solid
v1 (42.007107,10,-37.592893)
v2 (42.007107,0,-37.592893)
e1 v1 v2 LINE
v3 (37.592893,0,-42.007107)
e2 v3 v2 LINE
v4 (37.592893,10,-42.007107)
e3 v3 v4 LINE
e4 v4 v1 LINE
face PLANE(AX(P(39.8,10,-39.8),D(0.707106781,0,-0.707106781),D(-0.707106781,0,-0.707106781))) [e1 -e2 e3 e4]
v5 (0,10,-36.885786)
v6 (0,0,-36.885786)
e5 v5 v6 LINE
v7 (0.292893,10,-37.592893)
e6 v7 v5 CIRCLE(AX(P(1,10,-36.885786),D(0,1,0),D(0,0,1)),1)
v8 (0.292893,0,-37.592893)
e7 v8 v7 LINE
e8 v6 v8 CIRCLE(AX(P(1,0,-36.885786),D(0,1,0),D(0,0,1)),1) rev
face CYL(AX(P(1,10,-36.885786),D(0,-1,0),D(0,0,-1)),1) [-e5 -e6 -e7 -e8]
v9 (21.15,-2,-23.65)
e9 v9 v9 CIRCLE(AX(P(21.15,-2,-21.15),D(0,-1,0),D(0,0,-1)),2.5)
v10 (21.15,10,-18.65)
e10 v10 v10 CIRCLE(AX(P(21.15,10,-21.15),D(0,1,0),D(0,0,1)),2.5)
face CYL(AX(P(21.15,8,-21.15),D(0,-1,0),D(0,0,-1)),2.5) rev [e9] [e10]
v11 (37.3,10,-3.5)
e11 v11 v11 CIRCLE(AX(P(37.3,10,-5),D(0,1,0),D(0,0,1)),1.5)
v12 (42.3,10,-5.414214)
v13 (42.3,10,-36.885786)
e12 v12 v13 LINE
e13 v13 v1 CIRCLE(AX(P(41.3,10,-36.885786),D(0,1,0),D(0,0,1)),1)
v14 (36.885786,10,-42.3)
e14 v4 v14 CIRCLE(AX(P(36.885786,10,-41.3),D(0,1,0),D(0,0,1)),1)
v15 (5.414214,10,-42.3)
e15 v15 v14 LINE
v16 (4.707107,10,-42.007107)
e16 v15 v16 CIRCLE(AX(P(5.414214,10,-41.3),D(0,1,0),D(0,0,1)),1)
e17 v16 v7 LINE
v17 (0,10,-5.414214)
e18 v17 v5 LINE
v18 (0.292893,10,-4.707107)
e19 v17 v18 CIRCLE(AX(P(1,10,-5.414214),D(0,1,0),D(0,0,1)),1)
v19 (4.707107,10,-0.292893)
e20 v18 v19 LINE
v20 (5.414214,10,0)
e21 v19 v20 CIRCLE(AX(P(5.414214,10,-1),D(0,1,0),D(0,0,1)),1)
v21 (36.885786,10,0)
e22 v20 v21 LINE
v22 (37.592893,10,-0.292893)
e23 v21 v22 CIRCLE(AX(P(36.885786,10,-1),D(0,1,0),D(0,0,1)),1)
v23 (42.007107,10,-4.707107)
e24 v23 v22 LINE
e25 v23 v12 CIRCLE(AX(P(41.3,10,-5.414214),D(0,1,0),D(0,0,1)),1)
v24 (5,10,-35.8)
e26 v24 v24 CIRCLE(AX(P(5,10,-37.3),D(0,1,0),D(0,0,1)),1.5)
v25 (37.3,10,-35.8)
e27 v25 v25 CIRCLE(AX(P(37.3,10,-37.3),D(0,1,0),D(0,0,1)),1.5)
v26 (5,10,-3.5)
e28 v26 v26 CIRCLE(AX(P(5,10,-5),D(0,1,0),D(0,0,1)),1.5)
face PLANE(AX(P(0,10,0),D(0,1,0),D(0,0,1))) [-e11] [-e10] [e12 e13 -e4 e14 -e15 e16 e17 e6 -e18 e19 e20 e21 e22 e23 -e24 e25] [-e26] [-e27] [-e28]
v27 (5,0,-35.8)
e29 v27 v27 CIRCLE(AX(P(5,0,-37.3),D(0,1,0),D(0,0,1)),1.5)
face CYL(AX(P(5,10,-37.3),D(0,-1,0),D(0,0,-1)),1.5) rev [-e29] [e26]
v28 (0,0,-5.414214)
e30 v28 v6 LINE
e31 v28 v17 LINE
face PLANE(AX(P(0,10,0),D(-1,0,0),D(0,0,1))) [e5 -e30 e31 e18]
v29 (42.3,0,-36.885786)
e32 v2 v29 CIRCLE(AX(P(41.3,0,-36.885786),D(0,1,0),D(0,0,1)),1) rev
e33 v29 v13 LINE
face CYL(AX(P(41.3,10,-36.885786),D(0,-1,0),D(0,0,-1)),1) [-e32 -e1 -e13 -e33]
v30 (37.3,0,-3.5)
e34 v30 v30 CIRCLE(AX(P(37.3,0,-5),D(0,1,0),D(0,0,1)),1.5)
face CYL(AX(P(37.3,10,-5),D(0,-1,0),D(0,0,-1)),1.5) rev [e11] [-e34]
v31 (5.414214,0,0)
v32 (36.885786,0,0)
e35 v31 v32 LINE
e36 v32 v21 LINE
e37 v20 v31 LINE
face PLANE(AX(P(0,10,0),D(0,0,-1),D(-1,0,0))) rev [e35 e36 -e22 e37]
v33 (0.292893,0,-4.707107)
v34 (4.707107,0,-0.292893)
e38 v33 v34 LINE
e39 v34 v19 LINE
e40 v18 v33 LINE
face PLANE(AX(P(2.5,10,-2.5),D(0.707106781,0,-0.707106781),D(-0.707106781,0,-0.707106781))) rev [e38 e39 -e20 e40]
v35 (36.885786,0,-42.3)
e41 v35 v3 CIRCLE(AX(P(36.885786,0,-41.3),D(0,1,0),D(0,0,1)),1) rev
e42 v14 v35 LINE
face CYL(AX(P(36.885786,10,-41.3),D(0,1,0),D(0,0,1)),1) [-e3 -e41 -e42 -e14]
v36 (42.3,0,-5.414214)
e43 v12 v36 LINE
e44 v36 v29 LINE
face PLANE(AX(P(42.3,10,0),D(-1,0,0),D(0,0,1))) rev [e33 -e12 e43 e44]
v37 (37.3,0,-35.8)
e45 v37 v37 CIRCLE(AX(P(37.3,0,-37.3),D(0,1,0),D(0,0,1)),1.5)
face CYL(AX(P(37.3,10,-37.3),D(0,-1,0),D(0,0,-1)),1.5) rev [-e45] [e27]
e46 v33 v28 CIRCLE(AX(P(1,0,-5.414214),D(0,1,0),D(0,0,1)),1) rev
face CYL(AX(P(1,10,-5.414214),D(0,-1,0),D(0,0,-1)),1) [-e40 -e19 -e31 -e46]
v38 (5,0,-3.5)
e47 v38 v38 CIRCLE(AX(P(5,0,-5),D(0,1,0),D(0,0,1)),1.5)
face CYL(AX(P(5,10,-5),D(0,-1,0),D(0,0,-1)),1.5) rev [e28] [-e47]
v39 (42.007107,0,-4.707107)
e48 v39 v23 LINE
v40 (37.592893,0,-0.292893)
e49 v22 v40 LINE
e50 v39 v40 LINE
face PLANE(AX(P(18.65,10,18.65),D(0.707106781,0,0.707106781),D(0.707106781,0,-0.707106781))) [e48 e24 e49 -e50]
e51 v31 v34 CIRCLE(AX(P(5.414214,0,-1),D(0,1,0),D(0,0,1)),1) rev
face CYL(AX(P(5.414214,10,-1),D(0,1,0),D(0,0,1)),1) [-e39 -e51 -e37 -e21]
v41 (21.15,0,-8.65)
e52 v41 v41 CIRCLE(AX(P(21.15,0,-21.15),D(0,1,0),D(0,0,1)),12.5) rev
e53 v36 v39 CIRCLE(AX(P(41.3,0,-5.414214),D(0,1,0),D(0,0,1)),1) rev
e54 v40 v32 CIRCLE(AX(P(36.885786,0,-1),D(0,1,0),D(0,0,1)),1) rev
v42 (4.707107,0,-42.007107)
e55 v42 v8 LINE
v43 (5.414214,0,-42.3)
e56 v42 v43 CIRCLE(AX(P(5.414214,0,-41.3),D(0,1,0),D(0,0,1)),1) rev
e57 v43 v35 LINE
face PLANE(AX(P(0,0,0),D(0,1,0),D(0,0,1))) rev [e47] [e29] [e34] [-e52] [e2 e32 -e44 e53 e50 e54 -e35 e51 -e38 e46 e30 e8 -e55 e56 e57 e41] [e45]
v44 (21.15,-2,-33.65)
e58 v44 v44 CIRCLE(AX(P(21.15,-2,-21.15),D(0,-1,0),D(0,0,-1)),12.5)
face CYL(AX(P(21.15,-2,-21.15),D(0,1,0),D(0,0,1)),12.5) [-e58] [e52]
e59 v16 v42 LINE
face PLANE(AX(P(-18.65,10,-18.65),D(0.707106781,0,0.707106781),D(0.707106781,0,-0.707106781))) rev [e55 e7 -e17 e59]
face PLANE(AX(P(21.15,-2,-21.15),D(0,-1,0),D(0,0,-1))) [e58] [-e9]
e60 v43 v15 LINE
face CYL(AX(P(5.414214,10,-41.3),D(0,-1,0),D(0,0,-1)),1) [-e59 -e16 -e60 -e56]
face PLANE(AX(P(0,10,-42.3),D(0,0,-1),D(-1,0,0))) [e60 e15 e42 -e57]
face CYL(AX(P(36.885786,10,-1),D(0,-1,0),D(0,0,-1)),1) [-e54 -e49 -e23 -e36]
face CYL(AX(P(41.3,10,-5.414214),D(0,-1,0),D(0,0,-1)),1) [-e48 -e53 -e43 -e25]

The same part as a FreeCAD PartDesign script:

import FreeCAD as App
import Part
import Sketcher

V = App.Vector
Q = App.Units.Quantity


def edges_at(feature, points):
    """Names of the edges that pass closest to the given points."""
    edges = feature.Shape.Edges
    near = lambda p: min(range(len(edges)), key=lambda i: edges[i].distToShape(Part.Vertex(*p))[0])
    return sorted({f"Edge{near(p) + 1}" for p in points})

doc = App.newDocument("Part")
body = doc.addObject("PartDesign::Body", "Body")

sketch1 = body.newObject("Sketcher::SketchObject", "Sketch")
sketch1.AttachmentSupport = (doc.getObject("XZ_Plane"), [""])
sketch1.MapMode = "FlatFace"
sketch1.addGeometry([
    Part.LineSegment(V(37.3, -42.3, 0), V(5, -42.3, 0)),
    Part.LineSegment(V(5, -42.3, 0), V(0, -37.3, 0)),
    Part.LineSegment(V(0, -37.3, 0), V(0, -5, 0)),
    Part.LineSegment(V(0, -5, 0), V(5, 0, 0)),
    Part.LineSegment(V(5, 0, 0), V(37.3, 0, 0)),
    Part.LineSegment(V(37.3, 0, 0), V(42.3, -5, 0)),
    Part.LineSegment(V(42.3, -5, 0), V(42.3, -37.3, 0)),
    Part.LineSegment(V(42.3, -37.3, 0), V(37.3, -42.3, 0)),
    Part.Circle(V(5, -5, 0), V(0, 0, 1), 1.5),
    Part.Circle(V(37.3, -5, 0), V(0, 0, 1), 1.5),
    Part.Circle(V(5, -37.3, 0), V(0, 0, 1), 1.5),
    Part.Circle(V(37.3, -37.3, 0), V(0, 0, 1), 1.5),
], False)
sketch1.addConstraint([
    Sketcher.Constraint("Coincident", 0, 2, 1, 1),
    Sketcher.Constraint("Coincident", 1, 2, 2, 1),
    Sketcher.Constraint("Coincident", 2, 2, 3, 1),
    Sketcher.Constraint("Coincident", 3, 2, 4, 1),
    Sketcher.Constraint("Coincident", 4, 2, 5, 1),
    Sketcher.Constraint("Coincident", 5, 2, 6, 1),
    Sketcher.Constraint("Coincident", 6, 2, 7, 1),
    Sketcher.Constraint("Coincident", 7, 2, 0, 1),
    Sketcher.Constraint("Horizontal", 0),
    Sketcher.Constraint("Vertical", 2),
    Sketcher.Constraint("Horizontal", 4),
    Sketcher.Constraint("Vertical", 6),
    Sketcher.Constraint("Equal", 8, 9),
    Sketcher.Constraint("Equal", 9, 10),
    Sketcher.Constraint("Equal", 10, 11),
    Sketcher.Constraint("PointOnObject", 1, 2, -2),
    Sketcher.Constraint("PointOnObject", 3, 2, -1),
    Sketcher.Constraint("Perpendicular", 1, 3),
    Sketcher.Constraint("Perpendicular", 3, 5),
    Sketcher.Constraint("Perpendicular", 5, 7),
    Sketcher.Constraint("Horizontal", 8, 3, 9, 3),
    Sketcher.Constraint("Horizontal", 10, 3, 11, 3),
    Sketcher.Constraint("Horizontal", 11, 3, 1, 2),
    Sketcher.Constraint("Horizontal", 9, 3, 2, 2),
    Sketcher.Constraint("Horizontal", 2, 2, 5, 2),
    Sketcher.Constraint("Horizontal", 1, 2, 6, 2),
    Sketcher.Constraint("Vertical", 8, 3, 10, 3),
    Sketcher.Constraint("Vertical", 9, 3, 11, 3),
    Sketcher.Constraint("Vertical", 10, 3, 0, 2),
    Sketcher.Constraint("Vertical", 0, 2, 3, 2),
    Sketcher.Constraint("Vertical", 11, 3, 4, 2),
    Sketcher.Constraint("Vertical", 4, 2, 7, 2),
    Sketcher.Constraint("Equal", 4, 2),
    Sketcher.Constraint("Diameter", 8, Q("3 mm")),
    Sketcher.Constraint("DistanceX", 0, 2, 0, 1, Q("32.3 mm")),
    Sketcher.Constraint("DistanceX", -1, 1, 8, 3, Q("5 mm")),
])
pad1 = body.newObject("PartDesign::Pad", "Pad")
pad1.Profile = sketch1
pad1.Length = 10
pad1.Reversed = True
doc.recompute()

fillet = body.newObject("PartDesign::Fillet", "Fillet")
fillet.Base = (pad1, edges_at(pad1, [(0, 5, -5)]))
fillet.Radius = 1
doc.recompute()

fillet2 = body.newObject("PartDesign::Fillet", "Fillet001")
fillet2.Base = (fillet, edges_at(fillet, [(5, 5, 0)]))
fillet2.Radius = 1
doc.recompute()

fillet3 = body.newObject("PartDesign::Fillet", "Fillet002")
fillet3.Base = (fillet2, edges_at(fillet2, [(37.3, 5, 0)]))
fillet3.Radius = 1
doc.recompute()

fillet4 = body.newObject("PartDesign::Fillet", "Fillet003")
fillet4.Base = (fillet3, edges_at(fillet3, [(42.3, 5, -5)]))
fillet4.Radius = 1
doc.recompute()

fillet5 = body.newObject("PartDesign::Fillet", "Fillet004")
fillet5.Base = (fillet4, edges_at(fillet4, [(42.3, 5, -37.3)]))
fillet5.Radius = 1
doc.recompute()

fillet6 = body.newObject("PartDesign::Fillet", "Fillet005")
fillet6.Base = (fillet5, edges_at(fillet5, [(37.3, 5, -42.3)]))
fillet6.Radius = 1
doc.recompute()

fillet7 = body.newObject("PartDesign::Fillet", "Fillet006")
fillet7.Base = (fillet6, edges_at(fillet6, [(5, 5, -42.3)]))
fillet7.Radius = 1
doc.recompute()

fillet8 = body.newObject("PartDesign::Fillet", "Fillet007")
fillet8.Base = (fillet7, edges_at(fillet7, [(0, 5, -37.3)]))
fillet8.Radius = 1

sketch2 = body.newObject("Sketcher::SketchObject", "Sketch001")
sketch2.AttachmentSupport = (doc.getObject("XZ_Plane"), [""])
sketch2.MapMode = "FlatFace"
sketch2.addGeometry(Part.Circle(V(21.15, -21.15, 0), V(0, 0, 1), 12.5), False)
sketch2.addConstraint([
    Sketcher.Constraint("Diameter", 0, Q("25 mm")),
    Sketcher.Constraint("DistanceX", -1, 1, 0, 3, Q("21.15 mm")),
    Sketcher.Constraint("DistanceY", 0, 3, -1, 1, Q("21.15 mm")),
])
pad2 = body.newObject("PartDesign::Pad", "Pad001")
pad2.Profile = sketch2
pad2.Length = 2

sketch3 = body.newObject("Sketcher::SketchObject", "Sketch002")
sketch3.AttachmentSupport = (doc.getObject("XZ_Plane"), [""])
sketch3.MapMode = "FlatFace"
sketch3.AttachmentOffset = App.Placement(V(0, 0, 2), App.Rotation())
sketch3.addGeometry(Part.Circle(V(21.15, -21.15, 0), V(0, 0, 1), 2.5), False)
sketch3.addConstraint([
    Sketcher.Constraint("Diameter", 0, Q("5 mm")),
    Sketcher.Constraint("DistanceX", -1, 1, 0, 3, Q("21.15 mm")),
    Sketcher.Constraint("DistanceY", 0, 3, -1, 1, Q("21.15 mm")),
])
pocket1 = body.newObject("PartDesign::Pocket", "Pocket")
pocket1.Profile = sketch3
pocket1.Length = 10

sketch4 = body.newObject("Sketcher::SketchObject", "Sketch003")
sketch4.AttachmentSupport = (doc.getObject("XZ_Plane"), [""])
sketch4.MapMode = "FlatFace"
sketch4.AttachmentOffset = App.Placement(V(0, 0, 2), App.Rotation())
sketch4.addGeometry(Part.Circle(V(21.15, -21.15, 0), V(0, 0, 1), 2.5), False)
sketch4.addConstraint([
    Sketcher.Constraint("Diameter", 0, Q("5 mm")),
    Sketcher.Constraint("DistanceX", -1, 1, 0, 3, Q("21.15 mm")),
    Sketcher.Constraint("DistanceY", 0, 3, -1, 1, Q("21.15 mm")),
])
pocket2 = body.newObject("PartDesign::Pocket", "Pocket001")
pocket2.Profile = sketch4
pocket2.Length = 50

doc.recompute()
